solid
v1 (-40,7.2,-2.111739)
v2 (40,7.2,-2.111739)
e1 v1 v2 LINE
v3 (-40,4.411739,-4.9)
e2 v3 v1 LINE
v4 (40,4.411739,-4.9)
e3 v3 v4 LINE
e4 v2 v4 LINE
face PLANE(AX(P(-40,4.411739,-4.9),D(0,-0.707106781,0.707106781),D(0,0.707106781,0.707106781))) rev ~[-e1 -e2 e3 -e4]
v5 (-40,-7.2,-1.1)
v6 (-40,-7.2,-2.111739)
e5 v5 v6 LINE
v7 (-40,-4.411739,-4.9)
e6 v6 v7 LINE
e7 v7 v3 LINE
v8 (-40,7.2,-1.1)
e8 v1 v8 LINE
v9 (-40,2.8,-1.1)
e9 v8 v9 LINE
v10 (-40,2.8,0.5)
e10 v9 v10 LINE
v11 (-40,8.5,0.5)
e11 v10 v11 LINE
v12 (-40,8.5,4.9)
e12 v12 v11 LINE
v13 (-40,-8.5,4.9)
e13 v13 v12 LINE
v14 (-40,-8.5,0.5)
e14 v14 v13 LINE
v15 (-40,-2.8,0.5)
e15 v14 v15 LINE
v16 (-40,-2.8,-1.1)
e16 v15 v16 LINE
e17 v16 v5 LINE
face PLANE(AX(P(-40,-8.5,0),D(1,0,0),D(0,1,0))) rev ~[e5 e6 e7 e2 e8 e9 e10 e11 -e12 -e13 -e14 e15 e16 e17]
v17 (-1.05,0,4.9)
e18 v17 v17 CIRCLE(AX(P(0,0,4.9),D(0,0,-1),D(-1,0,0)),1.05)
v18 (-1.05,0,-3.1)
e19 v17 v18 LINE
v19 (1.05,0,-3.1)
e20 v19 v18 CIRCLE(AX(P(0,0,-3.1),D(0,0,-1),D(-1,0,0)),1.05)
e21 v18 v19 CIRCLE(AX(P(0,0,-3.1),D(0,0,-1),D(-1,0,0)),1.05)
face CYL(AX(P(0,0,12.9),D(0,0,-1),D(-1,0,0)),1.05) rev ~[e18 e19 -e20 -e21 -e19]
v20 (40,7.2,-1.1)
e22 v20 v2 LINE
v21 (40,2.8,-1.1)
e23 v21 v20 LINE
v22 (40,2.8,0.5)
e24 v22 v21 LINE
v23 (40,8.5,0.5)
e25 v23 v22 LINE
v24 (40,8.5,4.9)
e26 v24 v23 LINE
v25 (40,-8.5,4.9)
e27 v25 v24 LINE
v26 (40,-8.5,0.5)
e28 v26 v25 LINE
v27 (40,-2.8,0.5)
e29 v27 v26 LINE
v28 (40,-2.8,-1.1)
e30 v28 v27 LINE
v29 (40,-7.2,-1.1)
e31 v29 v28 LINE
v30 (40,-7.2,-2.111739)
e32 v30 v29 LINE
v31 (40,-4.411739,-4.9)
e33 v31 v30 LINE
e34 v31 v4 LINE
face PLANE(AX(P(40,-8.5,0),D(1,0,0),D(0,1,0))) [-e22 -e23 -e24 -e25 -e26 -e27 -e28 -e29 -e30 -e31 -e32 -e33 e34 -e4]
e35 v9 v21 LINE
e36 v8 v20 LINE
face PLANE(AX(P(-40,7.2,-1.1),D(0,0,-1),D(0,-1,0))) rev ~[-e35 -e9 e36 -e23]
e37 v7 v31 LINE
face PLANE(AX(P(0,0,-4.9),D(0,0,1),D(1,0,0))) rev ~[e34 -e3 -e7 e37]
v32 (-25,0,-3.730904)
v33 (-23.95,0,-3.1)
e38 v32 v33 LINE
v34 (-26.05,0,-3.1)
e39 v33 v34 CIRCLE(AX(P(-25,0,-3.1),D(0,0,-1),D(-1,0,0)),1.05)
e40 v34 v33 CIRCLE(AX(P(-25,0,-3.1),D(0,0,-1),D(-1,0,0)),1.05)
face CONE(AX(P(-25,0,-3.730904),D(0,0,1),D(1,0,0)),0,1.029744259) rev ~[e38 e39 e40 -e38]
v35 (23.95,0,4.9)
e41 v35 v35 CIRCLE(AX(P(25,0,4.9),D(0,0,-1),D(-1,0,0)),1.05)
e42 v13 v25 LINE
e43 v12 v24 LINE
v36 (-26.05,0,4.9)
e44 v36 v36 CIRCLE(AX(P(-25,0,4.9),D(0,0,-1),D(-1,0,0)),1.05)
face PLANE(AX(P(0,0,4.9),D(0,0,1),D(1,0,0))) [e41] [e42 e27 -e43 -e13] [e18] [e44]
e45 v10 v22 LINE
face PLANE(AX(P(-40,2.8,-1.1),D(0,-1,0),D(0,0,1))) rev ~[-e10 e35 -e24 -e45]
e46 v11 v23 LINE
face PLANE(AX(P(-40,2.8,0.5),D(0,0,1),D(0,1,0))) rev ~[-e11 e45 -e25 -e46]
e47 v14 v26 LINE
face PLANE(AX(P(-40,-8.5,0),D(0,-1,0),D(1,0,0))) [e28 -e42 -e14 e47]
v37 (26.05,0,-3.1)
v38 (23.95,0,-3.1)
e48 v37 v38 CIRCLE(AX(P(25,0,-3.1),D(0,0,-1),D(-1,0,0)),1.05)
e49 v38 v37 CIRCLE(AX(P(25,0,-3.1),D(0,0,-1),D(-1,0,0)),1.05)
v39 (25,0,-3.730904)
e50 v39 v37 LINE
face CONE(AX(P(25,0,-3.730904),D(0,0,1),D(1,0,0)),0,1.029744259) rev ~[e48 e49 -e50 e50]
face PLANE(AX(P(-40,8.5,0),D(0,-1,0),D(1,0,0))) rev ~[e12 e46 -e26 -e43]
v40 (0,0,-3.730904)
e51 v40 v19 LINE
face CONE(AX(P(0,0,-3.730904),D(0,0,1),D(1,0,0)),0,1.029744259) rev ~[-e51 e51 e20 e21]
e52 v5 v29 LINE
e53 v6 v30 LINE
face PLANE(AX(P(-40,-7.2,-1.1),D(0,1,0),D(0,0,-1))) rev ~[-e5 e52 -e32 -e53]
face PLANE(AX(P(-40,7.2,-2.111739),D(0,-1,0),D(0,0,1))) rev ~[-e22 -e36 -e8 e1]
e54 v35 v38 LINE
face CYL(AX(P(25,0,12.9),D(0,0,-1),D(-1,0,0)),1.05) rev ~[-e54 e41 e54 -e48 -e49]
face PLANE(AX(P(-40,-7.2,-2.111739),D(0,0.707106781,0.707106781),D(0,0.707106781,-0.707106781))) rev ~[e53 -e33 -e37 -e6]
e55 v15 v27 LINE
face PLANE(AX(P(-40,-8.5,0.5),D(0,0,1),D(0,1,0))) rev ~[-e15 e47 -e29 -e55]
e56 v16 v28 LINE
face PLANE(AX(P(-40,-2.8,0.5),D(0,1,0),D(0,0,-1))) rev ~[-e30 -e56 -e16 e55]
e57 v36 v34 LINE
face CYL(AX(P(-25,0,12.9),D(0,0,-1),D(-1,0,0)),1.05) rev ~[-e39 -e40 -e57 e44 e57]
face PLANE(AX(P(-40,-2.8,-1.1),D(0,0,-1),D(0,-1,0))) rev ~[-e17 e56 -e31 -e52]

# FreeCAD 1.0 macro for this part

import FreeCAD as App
import Part
import Sketcher

V = App.Vector

doc = App.newDocument("Part")
body = doc.addObject("PartDesign::Body", "Body")

# Sketch on XY plane
sketch1 = body.newObject("Sketcher::SketchObject", "Sketch")
sketch1.AttachmentSupport = (doc.getObject("XY_Plane"), [""])
sketch1.MapMode = "FlatFace"
sketch1.addGeometry([
    Part.LineSegment(V(-40, 8, 0), V(-40, -8, 0)),
    Part.LineSegment(V(-40, -8, 0), V(40, -8, 0)),
    Part.LineSegment(V(40, -8, 0), V(40, 8, 0)),
    Part.LineSegment(V(40, 8, 0), V(-40, 8, 0)),
], False)
sketch1.addConstraint([
    Sketcher.Constraint("Coincident", 0, 2, 1, 1),
    Sketcher.Constraint("Coincident", 1, 2, 2, 1),
    Sketcher.Constraint("Coincident", 2, 2, 3, 1),
    Sketcher.Constraint("Coincident", 3, 2, 0, 1),
    Sketcher.Constraint("Vertical", 0),
    Sketcher.Constraint("Horizontal", 1),
    Sketcher.Constraint("Vertical", 2),
    Sketcher.Constraint("Horizontal", 3),
    Sketcher.Constraint("Symmetric", 0, 2, 2, 2, -1, 1),
    Sketcher.Constraint("DistanceX", 1, 1, 1, 2, 80.0),
    Sketcher.Constraint("DistanceY", 0, 2, 0, 1, 17.0),
])
pad1 = body.newObject("PartDesign::Pad", "Pad")
pad1.Profile = sketch1
pad1.Length = 9.8
pad1.Midplane = True

# Sketch on YZ plane
sketch2 = body.newObject("Sketcher::SketchObject", "Sketch001")
sketch2.AttachmentSupport = (doc.getObject("YZ_Plane"), [""])
sketch2.MapMode = "FlatFace"
sketch2.AttachmentOffset = App.Placement(V(0, 0, -40), App.Rotation())
sketch2.addGeometry([
    Part.LineSegment(V(2.8, 0.5, 0), V(8.5, 0.5, 0)),  # 0
    Part.LineSegment(V(8.5, 0.5, 0), V(8.5, -4.9, 0)),  # 1
    Part.LineSegment(V(8.5, -4.9, 0), V(4.4, -4.9, 0)),  # 2
    Part.LineSegment(V(4.4, -4.9, 0), V(7.2, -2.1, 0)),  # 3
    Part.LineSegment(V(7.2, -2.1, 0), V(7.2, -1.1, 0)),  # 4
    Part.LineSegment(V(7.2, -1.1, 0), V(2.8, -1.1, 0)),  # 5
    Part.LineSegment(V(2.8, -1.1, 0), V(2.8, 0.5, 0)),  # 6
    Part.LineSegment(V(-8.5, 0.5, 0), V(-2.8, 0.5, 0)),  # 7
    Part.LineSegment(V(-2.8, 0.5, 0), V(-2.8, -1.1, 0)),  # 8
    Part.LineSegment(V(-2.8, -1.1, 0), V(-7.2, -1.1, 0)),  # 9
    Part.LineSegment(V(-7.2, -1.1, 0), V(-7.2, -2.1, 0)),  # 10
    Part.LineSegment(V(-7.2, -2.1, 0), V(-4.4, -4.9, 0)),  # 11
    Part.LineSegment(V(-4.4, -4.9, 0), V(-8.5, -4.9, 0)),  # 12
    Part.LineSegment(V(-8.5, -4.9, 0), V(-8.5, 0.5, 0)),  # 13
], False)
sketch2.addConstraint([
    Sketcher.Constraint("Coincident", 0, 2, 1, 1),
    Sketcher.Constraint("Coincident", 1, 2, 2, 1),
    Sketcher.Constraint("Coincident", 2, 2, 3, 1),
    Sketcher.Constraint("Coincident", 3, 2, 4, 1),
    Sketcher.Constraint("Coincident", 4, 2, 5, 1),
    Sketcher.Constraint("Coincident", 5, 2, 6, 1),
    Sketcher.Constraint("Coincident", 6, 2, 0, 1),
    Sketcher.Constraint("Coincident", 7, 2, 8, 1),
    Sketcher.Constraint("Coincident", 8, 2, 9, 1),
    Sketcher.Constraint("Coincident", 9, 2, 10, 1),
    Sketcher.Constraint("Coincident", 10, 2, 11, 1),
    Sketcher.Constraint("Coincident", 11, 2, 12, 1),
    Sketcher.Constraint("Coincident", 12, 2, 13, 1),
    Sketcher.Constraint("Coincident", 13, 2, 7, 1),
    Sketcher.Constraint("Horizontal", 0),
    Sketcher.Constraint("Vertical", 1),
    Sketcher.Constraint("Horizontal", 2),
    Sketcher.Constraint("Vertical", 4),
    Sketcher.Constraint("Horizontal", 5),
    Sketcher.Constraint("Vertical", 6),
    Sketcher.Constraint("Horizontal", 7),
    Sketcher.Constraint("Vertical", 8),
    Sketcher.Constraint("Horizontal", 9),
    Sketcher.Constraint("Vertical", 10),
    Sketcher.Constraint("Horizontal", 12),
    Sketcher.Constraint("Vertical", 13),
    Sketcher.Constraint("Symmetric", 6, 2, 7, 2, -2),
    Sketcher.Constraint("Symmetric", 4, 2, 9, 2, -2),
    Sketcher.Constraint("Symmetric", 2, 2, 11, 2, -2),
    Sketcher.Constraint("Perpendicular", 3, 11),
    Sketcher.Constraint("Horizontal", 3, 2, 10, 2),
    Sketcher.Constraint("Equal", 0, 7),
    Sketcher.Constraint("DistanceX", 0, 1, 0, 2, 5.7),
    Sketcher.Constraint("DistanceX", 5, 2, 5, 1, 4.4),
    Sketcher.Constraint("DistanceY", 1, 2, 1, 1, 5.4),
    Sketcher.Constraint("DistanceY", 6, 1, 6, 2, 1.6),
    Sketcher.Constraint("DistanceX", 7, 2, 4, 2, 10.0),
    Sketcher.Constraint("DistanceY", -1, 1, 0, 2, 0.5),
    Sketcher.Constraint("DistanceX", 2, 2, 2, 1, 4.088261),
])
pocket1 = body.newObject("PartDesign::Pocket", "Pocket")
pocket1.Profile = sketch2
pocket1.Type = "ThroughAll"
pocket1.Reversed = True

# Sketch on XY plane
sketch3 = body.newObject("Sketcher::SketchObject", "Sketch002")
sketch3.AttachmentSupport = (doc.getObject("XY_Plane"), [""])
sketch3.MapMode = "FlatFace"
sketch3.AttachmentOffset = App.Placement(V(0, 0, 4.9), App.Rotation())
sketch3.addGeometry([
    Part.Circle(V(-25, 0, 0), V(0, 0, 1), 1.1),
    Part.Circle(V(25, 0, 0), V(0, 0, 1), 1.1),
    Part.Circle(V(0, 0, 0), V(0, 0, 1), 1.1),
], False)
sketch3.addConstraint([
    Sketcher.Constraint("Coincident", 2, 3, -1, 1),
    Sketcher.Constraint("Equal", 0, 1),
    Sketcher.Constraint("Equal", 1, 2),
    Sketcher.Constraint("Symmetric", 0, 3, 1, 3, -1, 1),
    Sketcher.Constraint("PointOnObject", 0, 3, -1),
    Sketcher.Constraint("Diameter", 0, 2.1),
    Sketcher.Constraint("DistanceX", 0, 3, -1, 1, 25.0),
])
doc.recompute()
hole = body.newObject("PartDesign::Hole", "Hole")
hole.Profile = sketch3
hole.ThreadType = "None"
hole.Diameter = 2.1
hole.DepthType = "Dimension"
hole.Depth = 8
hole.DrillPoint = "Angled"
hole.DrillPointAngle = 118

doc.recompute()
